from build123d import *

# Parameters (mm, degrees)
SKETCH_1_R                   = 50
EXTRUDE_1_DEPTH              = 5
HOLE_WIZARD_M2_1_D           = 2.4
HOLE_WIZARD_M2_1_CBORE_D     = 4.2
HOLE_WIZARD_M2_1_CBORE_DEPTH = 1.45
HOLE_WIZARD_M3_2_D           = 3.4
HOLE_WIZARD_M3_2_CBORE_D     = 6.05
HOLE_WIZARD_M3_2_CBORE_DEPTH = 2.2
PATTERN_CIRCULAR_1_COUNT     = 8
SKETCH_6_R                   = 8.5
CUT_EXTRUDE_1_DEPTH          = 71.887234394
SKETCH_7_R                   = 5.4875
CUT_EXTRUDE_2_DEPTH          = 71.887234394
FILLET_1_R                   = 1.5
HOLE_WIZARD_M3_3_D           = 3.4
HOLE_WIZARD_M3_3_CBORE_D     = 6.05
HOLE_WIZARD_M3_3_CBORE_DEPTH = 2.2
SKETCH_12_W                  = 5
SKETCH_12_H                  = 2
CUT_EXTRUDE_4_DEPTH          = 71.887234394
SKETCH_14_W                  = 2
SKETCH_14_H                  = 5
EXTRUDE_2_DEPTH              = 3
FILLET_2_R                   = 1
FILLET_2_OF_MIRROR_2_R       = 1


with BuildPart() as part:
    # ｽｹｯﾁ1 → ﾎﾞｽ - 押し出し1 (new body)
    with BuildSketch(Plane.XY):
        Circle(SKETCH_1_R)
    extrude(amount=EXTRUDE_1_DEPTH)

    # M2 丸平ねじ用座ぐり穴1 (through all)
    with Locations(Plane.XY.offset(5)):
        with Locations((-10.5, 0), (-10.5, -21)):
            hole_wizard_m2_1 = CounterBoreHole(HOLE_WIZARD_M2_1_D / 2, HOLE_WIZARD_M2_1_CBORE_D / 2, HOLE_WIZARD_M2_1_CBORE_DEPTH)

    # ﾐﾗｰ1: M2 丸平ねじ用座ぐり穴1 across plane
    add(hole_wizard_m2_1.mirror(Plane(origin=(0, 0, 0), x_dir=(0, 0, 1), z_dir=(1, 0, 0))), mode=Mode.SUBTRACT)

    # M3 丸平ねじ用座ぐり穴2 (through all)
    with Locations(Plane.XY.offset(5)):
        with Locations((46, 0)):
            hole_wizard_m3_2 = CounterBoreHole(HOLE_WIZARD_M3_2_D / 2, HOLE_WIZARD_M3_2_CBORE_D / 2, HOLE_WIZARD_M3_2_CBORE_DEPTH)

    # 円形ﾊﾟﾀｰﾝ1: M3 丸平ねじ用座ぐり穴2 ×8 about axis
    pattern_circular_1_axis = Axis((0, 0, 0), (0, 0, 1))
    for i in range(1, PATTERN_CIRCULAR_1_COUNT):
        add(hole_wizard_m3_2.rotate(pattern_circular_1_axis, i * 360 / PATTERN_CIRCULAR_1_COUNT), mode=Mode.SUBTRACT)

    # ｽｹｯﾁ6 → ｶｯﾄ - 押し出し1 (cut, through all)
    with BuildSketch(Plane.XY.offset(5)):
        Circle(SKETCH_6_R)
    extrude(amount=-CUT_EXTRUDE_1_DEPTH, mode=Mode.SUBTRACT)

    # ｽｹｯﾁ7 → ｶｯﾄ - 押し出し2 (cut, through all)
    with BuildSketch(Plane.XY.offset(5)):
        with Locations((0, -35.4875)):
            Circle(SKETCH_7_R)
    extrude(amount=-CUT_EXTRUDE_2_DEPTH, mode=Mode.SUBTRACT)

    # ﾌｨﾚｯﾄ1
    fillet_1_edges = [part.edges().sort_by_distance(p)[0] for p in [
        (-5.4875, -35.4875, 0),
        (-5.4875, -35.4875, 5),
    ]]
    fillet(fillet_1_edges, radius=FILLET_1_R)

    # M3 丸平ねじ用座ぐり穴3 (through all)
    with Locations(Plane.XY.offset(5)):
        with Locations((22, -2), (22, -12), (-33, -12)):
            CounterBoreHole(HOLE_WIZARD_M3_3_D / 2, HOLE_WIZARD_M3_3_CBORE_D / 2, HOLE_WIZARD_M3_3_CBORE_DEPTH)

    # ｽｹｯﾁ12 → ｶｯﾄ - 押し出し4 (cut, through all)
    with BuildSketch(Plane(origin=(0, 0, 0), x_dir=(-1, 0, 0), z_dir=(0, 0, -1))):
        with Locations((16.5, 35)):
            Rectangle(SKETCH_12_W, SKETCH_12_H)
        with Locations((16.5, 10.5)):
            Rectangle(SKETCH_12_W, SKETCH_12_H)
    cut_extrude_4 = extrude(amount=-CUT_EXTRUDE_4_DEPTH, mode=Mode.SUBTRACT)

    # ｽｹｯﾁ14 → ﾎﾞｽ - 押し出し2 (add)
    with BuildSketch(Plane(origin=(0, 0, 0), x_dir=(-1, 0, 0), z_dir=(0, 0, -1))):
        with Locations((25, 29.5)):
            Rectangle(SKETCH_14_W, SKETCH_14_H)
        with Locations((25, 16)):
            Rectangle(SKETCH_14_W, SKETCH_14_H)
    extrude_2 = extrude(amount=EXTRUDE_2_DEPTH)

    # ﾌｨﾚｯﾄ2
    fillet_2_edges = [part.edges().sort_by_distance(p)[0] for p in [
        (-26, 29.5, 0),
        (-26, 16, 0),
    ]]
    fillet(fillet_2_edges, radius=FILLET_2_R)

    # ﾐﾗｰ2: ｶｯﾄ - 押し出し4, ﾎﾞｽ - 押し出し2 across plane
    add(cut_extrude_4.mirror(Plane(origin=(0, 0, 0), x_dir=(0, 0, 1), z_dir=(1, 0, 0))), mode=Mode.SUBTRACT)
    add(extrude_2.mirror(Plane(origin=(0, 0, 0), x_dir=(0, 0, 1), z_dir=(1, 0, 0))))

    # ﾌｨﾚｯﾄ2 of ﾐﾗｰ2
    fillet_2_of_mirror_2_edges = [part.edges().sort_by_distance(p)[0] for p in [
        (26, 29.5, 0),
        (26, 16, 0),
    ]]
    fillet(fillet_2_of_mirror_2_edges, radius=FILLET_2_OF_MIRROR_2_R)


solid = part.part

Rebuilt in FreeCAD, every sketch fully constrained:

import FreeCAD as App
import Part
import Sketcher

V = App.Vector


def edges_at(feature, points):
    """Names of the edges that pass closest to the given points."""
    edges = feature.Shape.Edges
    near = lambda p: min(range(len(edges)), key=lambda i: edges[i].distToShape(Part.Vertex(*p))[0])
    return sorted({f"Edge{near(p) + 1}" for p in points})

doc = App.newDocument("Part")
body = doc.addObject("PartDesign::Body", "Body")

# Sketch on XY plane
sketch1 = body.newObject("Sketcher::SketchObject", "Sketch")
sketch1.AttachmentSupport = (doc.getObject("XY_Plane"), [""])
sketch1.MapMode = "FlatFace"
sketch1.addGeometry(Part.Circle(V(0, 0, 0), V(0, 0, 1), 50), False)
sketch1.addConstraint([
    Sketcher.Constraint("Coincident", 0, 3, -1, 1),
    Sketcher.Constraint("Diameter", 0, 100.0),
])
pad1 = body.newObject("PartDesign::Pad", "Pad")
pad1.Profile = sketch1
pad1.Length = 5

# Sketch on XY plane
sketch2 = body.newObject("Sketcher::SketchObject", "Sketch001")
sketch2.AttachmentSupport = (doc.getObject("XY_Plane"), [""])
sketch2.MapMode = "FlatFace"
sketch2.AttachmentOffset = App.Placement(V(0, 0, 5), App.Rotation())
sketch2.addGeometry([
    Part.Circle(V(-10.5, 0, 0), V(0, 0, 1), 1.2),
    Part.Circle(V(-10.5, -21, 0), V(0, 0, 1), 1.2),
], False)
sketch2.addConstraint([
    Sketcher.Constraint("Equal", 0, 1),
    Sketcher.Constraint("PointOnObject", 0, 3, -1),
    Sketcher.Constraint("Vertical", 0, 3, 1, 3),
    Sketcher.Constraint("Diameter", 0, 2.4),
    Sketcher.Constraint("DistanceY", 1, 3, -1, 1, 21.0),
    Sketcher.Constraint("DistanceX", 0, 3, -1, 1, 10.5),
])
doc.recompute()
hole = body.newObject("PartDesign::Hole", "Hole")
hole.Profile = sketch2
hole.ThreadType = "None"
hole.Diameter = 2.4
hole.DepthType = "ThroughAll"
hole.HoleCutType = "Counterbore"
hole.HoleCutDiameter = 4.2
hole.HoleCutDepth = 1.45
doc.recompute()

mirrored = body.newObject("PartDesign::Mirrored", "Mirrored")
mirrored.Originals = [hole]
mirrored.MirrorPlane = (doc.getObject("YZ_Plane"), [""])
body.Tip = mirrored

# Sketch on XY plane
sketch3 = body.newObject("Sketcher::SketchObject", "Sketch002")
sketch3.AttachmentSupport = (doc.getObject("XY_Plane"), [""])
sketch3.MapMode = "FlatFace"
sketch3.AttachmentOffset = App.Placement(V(0, 0, 5), App.Rotation())
sketch3.addGeometry(Part.Circle(V(46, 0, 0), V(0, 0, 1), 1.7), False)
sketch3.addConstraint([
    Sketcher.Constraint("PointOnObject", 0, 3, -1),
    Sketcher.Constraint("Diameter", 0, 3.4),
    Sketcher.Constraint("DistanceX", -1, 1, 0, 3, 46.0),
])
doc.recompute()
hole2 = body.newObject("PartDesign::Hole", "Hole001")
hole2.Profile = sketch3
hole2.ThreadType = "None"
hole2.Diameter = 3.4
hole2.DepthType = "ThroughAll"
hole2.HoleCutType = "Counterbore"
hole2.HoleCutDiameter = 6.05
hole2.HoleCutDepth = 2.2
doc.recompute()

polarpattern = body.newObject("PartDesign::PolarPattern", "PolarPattern")
polarpattern.Originals = [hole2]
polarpattern.Axis = (doc.getObject("Z_Axis"), [""])
polarpattern.Angle = 360
polarpattern.Occurrences = 8
body.Tip = polarpattern

# Sketch on XY plane
sketch4 = body.newObject("Sketcher::SketchObject", "Sketch003")
sketch4.AttachmentSupport = (doc.getObject("XY_Plane"), [""])
sketch4.MapMode = "FlatFace"
sketch4.AttachmentOffset = App.Placement(V(0, 0, 5), App.Rotation())
sketch4.addGeometry(Part.Circle(V(0, 0, 0), V(0, 0, 1), 8.5), False)
sketch4.addConstraint([
    Sketcher.Constraint("Coincident", 0, 3, -1, 1),
    Sketcher.Constraint("Diameter", 0, 17.0),
])
pocket1 = body.newObject("PartDesign::Pocket", "Pocket")
pocket1.Profile = sketch4
pocket1.Type = "ThroughAll"

# Sketch on XY plane
sketch5 = body.newObject("Sketcher::SketchObject", "Sketch004")
sketch5.AttachmentSupport = (doc.getObject("XY_Plane"), [""])
sketch5.MapMode = "FlatFace"
sketch5.AttachmentOffset = App.Placement(V(0, 0, 5), App.Rotation())
sketch5.addGeometry(Part.Circle(V(0, -35.4875, 0), V(0, 0, 1), 5.4875), False)
sketch5.addConstraint([
    Sketcher.Constraint("PointOnObject", 0, 3, -2),
    Sketcher.Constraint("Diameter", 0, 10.975),
    Sketcher.Constraint("DistanceY", 0, 3, -1, 1, 35.4875),
])
pocket2 = body.newObject("PartDesign::Pocket", "Pocket001")
pocket2.Profile = sketch5
pocket2.Type = "ThroughAll"
doc.recompute()

fillet = body.newObject("PartDesign::Fillet", "Fillet")
fillet.Base = (pocket2, edges_at(pocket2, [(-5.487, -35.487, 0), (-5.487, -35.487, 5)]))
fillet.Radius = 1.5

# Sketch on XY plane
sketch6 = body.newObject("Sketcher::SketchObject", "Sketch005")
sketch6.AttachmentSupport = (doc.getObject("XY_Plane"), [""])
sketch6.MapMode = "FlatFace"
sketch6.AttachmentOffset = App.Placement(V(0, 0, 5), App.Rotation())
sketch6.addGeometry([
    Part.Circle(V(22, -2, 0), V(0, 0, 1), 1.7),
    Part.Circle(V(22, -12, 0), V(0, 0, 1), 1.7),
    Part.Circle(V(-33, -12, 0), V(0, 0, 1), 1.7),
], False)
sketch6.addConstraint([
    Sketcher.Constraint("Equal", 0, 1),
    Sketcher.Constraint("Equal", 1, 2),
    Sketcher.Constraint("Horizontal", 1, 3, 2, 3),
    Sketcher.Constraint("Vertical", 0, 3, 1, 3),
    Sketcher.Constraint("Diameter", 0, 3.4),
    Sketcher.Constraint("DistanceX", -1, 1, 0, 3, 22.0),
    Sketcher.Constraint("DistanceY", 0, 3, -1, 1, 2.0),
    Sketcher.Constraint("DistanceY", 1, 3, -1, 1, 12.0),
    Sketcher.Constraint("DistanceX", 2, 3, -1, 1, 33.0),
])
doc.recompute()
hole3 = body.newObject("PartDesign::Hole", "Hole002")
hole3.Profile = sketch6
hole3.ThreadType = "None"
hole3.Diameter = 3.4
hole3.DepthType = "ThroughAll"
hole3.HoleCutType = "Counterbore"
hole3.HoleCutDiameter = 6.05
hole3.HoleCutDepth = 2.2

# Sketch on XY plane
sketch7 = body.newObject("Sketcher::SketchObject", "Sketch006")
sketch7.AttachmentSupport = (doc.getObject("XY_Plane"), [""])
sketch7.MapMode = "FlatFace"
sketch7.addGeometry([
    Part.LineSegment(V(-14, 36, 0), V(-14, 34, 0)),  # 0
    Part.LineSegment(V(-14, 34, 0), V(-19, 34, 0)),  # 1
    Part.LineSegment(V(-19, 34, 0), V(-19, 36, 0)),  # 2
    Part.LineSegment(V(-19, 36, 0), V(-14, 36, 0)),  # 3
    Part.LineSegment(V(-14, 11.5, 0), V(-14, 9.5, 0)),  # 4
    Part.LineSegment(V(-14, 9.5, 0), V(-19, 9.5, 0)),  # 5
    Part.LineSegment(V(-19, 9.5, 0), V(-19, 11.5, 0)),  # 6
    Part.LineSegment(V(-19, 11.5, 0), V(-14, 11.5, 0)),  # 7
], False)
sketch7.addConstraint([
    Sketcher.Constraint("Coincident", 0, 2, 1, 1),
    Sketcher.Constraint("Coincident", 1, 2, 2, 1),
    Sketcher.Constraint("Coincident", 2, 2, 3, 1),
    Sketcher.Constraint("Coincident", 3, 2, 0, 1),
    Sketcher.Constraint("Coincident", 4, 2, 5, 1),
    Sketcher.Constraint("Coincident", 5, 2, 6, 1),
    Sketcher.Constraint("Coincident", 6, 2, 7, 1),
    Sketcher.Constraint("Coincident", 7, 2, 4, 1),
    Sketcher.Constraint("Vertical", 0),
    Sketcher.Constraint("Horizontal", 1),
    Sketcher.Constraint("Vertical", 2),
    Sketcher.Constraint("Horizontal", 3),
    Sketcher.Constraint("Vertical", 4),
    Sketcher.Constraint("Horizontal", 5),
    Sketcher.Constraint("Vertical", 6),
    Sketcher.Constraint("Horizontal", 7),
    Sketcher.Constraint("Vertical", 3, 2, 4, 2),
    Sketcher.Constraint("Vertical", 2, 2, 5, 2),
    Sketcher.Constraint("Equal", 2, 4),
    Sketcher.Constraint("DistanceX", 1, 2, 1, 1, 5.0),
    Sketcher.Constraint("DistanceY", 0, 2, 0, 1, 2.0),
    Sketcher.Constraint("DistanceX", 0, 2, -1, 1, 14.0),
    Sketcher.Constraint("DistanceY", -1, 1, 0, 2, 34.0),
    Sketcher.Constraint("DistanceY", -1, 1, 4, 2, 9.5),
])
pocket3 = body.newObject("PartDesign::Pocket", "Pocket002")
pocket3.Profile = sketch7
pocket3.Type = "ThroughAll"
pocket3.Reversed = True

# Sketch on XY plane
sketch8 = body.newObject("Sketcher::SketchObject", "Sketch007")
sketch8.AttachmentSupport = (doc.getObject("XY_Plane"), [""])
sketch8.MapMode = "FlatFace"
sketch8.addGeometry([
    Part.LineSegment(V(-24, 32, 0), V(-24, 27, 0)),  # 0
    Part.LineSegment(V(-24, 27, 0), V(-26, 27, 0)),  # 1
    Part.LineSegment(V(-26, 27, 0), V(-26, 32, 0)),  # 2
    Part.LineSegment(V(-26, 32, 0), V(-24, 32, 0)),  # 3
    Part.LineSegment(V(-24, 18.5, 0), V(-24, 13.5, 0)),  # 4
    Part.LineSegment(V(-24, 13.5, 0), V(-26, 13.5, 0)),  # 5
    Part.LineSegment(V(-26, 13.5, 0), V(-26, 18.5, 0)),  # 6
    Part.LineSegment(V(-26, 18.5, 0), V(-24, 18.5, 0)),  # 7
], False)
sketch8.addConstraint([
    Sketcher.Constraint("Coincident", 0, 2, 1, 1),
    Sketcher.Constraint("Coincident", 1, 2, 2, 1),
    Sketcher.Constraint("Coincident", 2, 2, 3, 1),
    Sketcher.Constraint("Coincident", 3, 2, 0, 1),
    Sketcher.Constraint("Coincident", 4, 2, 5, 1),
    Sketcher.Constraint("Coincident", 5, 2, 6, 1),
    Sketcher.Constraint("Coincident", 6, 2, 7, 1),
    Sketcher.Constraint("Coincident", 7, 2, 4, 1),
    Sketcher.Constraint("Vertical", 0),
    Sketcher.Constraint("Horizontal", 1),
    Sketcher.Constraint("Vertical", 2),
    Sketcher.Constraint("Horizontal", 3),
    Sketcher.Constraint("Vertical", 4),
    Sketcher.Constraint("Horizontal", 5),
    Sketcher.Constraint("Vertical", 6),
    Sketcher.Constraint("Horizontal", 7),
    Sketcher.Constraint("Vertical", 3, 2, 4, 2),
    Sketcher.Constraint("Vertical", 2, 2, 5, 2),
    Sketcher.Constraint("Equal", 2, 4),
    Sketcher.Constraint("DistanceX", 1, 2, 1, 1, 2.0),
    Sketcher.Constraint("DistanceY", 0, 2, 0, 1, 5.0),
    Sketcher.Constraint("DistanceX", 0, 2, -1, 1, 24.0),
    Sketcher.Constraint("DistanceY", -1, 1, 0, 2, 27.0),
    Sketcher.Constraint("DistanceY", -1, 1, 4, 2, 13.5),
])
pad2 = body.newObject("PartDesign::Pad", "Pad001")
pad2.Profile = sketch8
pad2.Length = 3
pad2.Reversed = True
doc.recompute()

fillet2 = body.newObject("PartDesign::Fillet", "Fillet001")
fillet2.Base = (pad2, edges_at(pad2, [(-26, 29.5, 0), (-26, 16, 0)]))
fillet2.Radius = 1
doc.recompute()

mirrored2 = body.newObject("PartDesign::Mirrored", "Mirrored001")
mirrored2.Originals = [pocket3, pad2]
mirrored2.MirrorPlane = (doc.getObject("YZ_Plane"), [""])
body.Tip = mirrored2
doc.recompute()

fillet3 = body.newObject("PartDesign::Fillet", "Fillet002")
fillet3.Base = (mirrored2, edges_at(mirrored2, [(26, 29.5, 0), (26, 16, 0)]))
fillet3.Radius = 1

doc.recompute()
